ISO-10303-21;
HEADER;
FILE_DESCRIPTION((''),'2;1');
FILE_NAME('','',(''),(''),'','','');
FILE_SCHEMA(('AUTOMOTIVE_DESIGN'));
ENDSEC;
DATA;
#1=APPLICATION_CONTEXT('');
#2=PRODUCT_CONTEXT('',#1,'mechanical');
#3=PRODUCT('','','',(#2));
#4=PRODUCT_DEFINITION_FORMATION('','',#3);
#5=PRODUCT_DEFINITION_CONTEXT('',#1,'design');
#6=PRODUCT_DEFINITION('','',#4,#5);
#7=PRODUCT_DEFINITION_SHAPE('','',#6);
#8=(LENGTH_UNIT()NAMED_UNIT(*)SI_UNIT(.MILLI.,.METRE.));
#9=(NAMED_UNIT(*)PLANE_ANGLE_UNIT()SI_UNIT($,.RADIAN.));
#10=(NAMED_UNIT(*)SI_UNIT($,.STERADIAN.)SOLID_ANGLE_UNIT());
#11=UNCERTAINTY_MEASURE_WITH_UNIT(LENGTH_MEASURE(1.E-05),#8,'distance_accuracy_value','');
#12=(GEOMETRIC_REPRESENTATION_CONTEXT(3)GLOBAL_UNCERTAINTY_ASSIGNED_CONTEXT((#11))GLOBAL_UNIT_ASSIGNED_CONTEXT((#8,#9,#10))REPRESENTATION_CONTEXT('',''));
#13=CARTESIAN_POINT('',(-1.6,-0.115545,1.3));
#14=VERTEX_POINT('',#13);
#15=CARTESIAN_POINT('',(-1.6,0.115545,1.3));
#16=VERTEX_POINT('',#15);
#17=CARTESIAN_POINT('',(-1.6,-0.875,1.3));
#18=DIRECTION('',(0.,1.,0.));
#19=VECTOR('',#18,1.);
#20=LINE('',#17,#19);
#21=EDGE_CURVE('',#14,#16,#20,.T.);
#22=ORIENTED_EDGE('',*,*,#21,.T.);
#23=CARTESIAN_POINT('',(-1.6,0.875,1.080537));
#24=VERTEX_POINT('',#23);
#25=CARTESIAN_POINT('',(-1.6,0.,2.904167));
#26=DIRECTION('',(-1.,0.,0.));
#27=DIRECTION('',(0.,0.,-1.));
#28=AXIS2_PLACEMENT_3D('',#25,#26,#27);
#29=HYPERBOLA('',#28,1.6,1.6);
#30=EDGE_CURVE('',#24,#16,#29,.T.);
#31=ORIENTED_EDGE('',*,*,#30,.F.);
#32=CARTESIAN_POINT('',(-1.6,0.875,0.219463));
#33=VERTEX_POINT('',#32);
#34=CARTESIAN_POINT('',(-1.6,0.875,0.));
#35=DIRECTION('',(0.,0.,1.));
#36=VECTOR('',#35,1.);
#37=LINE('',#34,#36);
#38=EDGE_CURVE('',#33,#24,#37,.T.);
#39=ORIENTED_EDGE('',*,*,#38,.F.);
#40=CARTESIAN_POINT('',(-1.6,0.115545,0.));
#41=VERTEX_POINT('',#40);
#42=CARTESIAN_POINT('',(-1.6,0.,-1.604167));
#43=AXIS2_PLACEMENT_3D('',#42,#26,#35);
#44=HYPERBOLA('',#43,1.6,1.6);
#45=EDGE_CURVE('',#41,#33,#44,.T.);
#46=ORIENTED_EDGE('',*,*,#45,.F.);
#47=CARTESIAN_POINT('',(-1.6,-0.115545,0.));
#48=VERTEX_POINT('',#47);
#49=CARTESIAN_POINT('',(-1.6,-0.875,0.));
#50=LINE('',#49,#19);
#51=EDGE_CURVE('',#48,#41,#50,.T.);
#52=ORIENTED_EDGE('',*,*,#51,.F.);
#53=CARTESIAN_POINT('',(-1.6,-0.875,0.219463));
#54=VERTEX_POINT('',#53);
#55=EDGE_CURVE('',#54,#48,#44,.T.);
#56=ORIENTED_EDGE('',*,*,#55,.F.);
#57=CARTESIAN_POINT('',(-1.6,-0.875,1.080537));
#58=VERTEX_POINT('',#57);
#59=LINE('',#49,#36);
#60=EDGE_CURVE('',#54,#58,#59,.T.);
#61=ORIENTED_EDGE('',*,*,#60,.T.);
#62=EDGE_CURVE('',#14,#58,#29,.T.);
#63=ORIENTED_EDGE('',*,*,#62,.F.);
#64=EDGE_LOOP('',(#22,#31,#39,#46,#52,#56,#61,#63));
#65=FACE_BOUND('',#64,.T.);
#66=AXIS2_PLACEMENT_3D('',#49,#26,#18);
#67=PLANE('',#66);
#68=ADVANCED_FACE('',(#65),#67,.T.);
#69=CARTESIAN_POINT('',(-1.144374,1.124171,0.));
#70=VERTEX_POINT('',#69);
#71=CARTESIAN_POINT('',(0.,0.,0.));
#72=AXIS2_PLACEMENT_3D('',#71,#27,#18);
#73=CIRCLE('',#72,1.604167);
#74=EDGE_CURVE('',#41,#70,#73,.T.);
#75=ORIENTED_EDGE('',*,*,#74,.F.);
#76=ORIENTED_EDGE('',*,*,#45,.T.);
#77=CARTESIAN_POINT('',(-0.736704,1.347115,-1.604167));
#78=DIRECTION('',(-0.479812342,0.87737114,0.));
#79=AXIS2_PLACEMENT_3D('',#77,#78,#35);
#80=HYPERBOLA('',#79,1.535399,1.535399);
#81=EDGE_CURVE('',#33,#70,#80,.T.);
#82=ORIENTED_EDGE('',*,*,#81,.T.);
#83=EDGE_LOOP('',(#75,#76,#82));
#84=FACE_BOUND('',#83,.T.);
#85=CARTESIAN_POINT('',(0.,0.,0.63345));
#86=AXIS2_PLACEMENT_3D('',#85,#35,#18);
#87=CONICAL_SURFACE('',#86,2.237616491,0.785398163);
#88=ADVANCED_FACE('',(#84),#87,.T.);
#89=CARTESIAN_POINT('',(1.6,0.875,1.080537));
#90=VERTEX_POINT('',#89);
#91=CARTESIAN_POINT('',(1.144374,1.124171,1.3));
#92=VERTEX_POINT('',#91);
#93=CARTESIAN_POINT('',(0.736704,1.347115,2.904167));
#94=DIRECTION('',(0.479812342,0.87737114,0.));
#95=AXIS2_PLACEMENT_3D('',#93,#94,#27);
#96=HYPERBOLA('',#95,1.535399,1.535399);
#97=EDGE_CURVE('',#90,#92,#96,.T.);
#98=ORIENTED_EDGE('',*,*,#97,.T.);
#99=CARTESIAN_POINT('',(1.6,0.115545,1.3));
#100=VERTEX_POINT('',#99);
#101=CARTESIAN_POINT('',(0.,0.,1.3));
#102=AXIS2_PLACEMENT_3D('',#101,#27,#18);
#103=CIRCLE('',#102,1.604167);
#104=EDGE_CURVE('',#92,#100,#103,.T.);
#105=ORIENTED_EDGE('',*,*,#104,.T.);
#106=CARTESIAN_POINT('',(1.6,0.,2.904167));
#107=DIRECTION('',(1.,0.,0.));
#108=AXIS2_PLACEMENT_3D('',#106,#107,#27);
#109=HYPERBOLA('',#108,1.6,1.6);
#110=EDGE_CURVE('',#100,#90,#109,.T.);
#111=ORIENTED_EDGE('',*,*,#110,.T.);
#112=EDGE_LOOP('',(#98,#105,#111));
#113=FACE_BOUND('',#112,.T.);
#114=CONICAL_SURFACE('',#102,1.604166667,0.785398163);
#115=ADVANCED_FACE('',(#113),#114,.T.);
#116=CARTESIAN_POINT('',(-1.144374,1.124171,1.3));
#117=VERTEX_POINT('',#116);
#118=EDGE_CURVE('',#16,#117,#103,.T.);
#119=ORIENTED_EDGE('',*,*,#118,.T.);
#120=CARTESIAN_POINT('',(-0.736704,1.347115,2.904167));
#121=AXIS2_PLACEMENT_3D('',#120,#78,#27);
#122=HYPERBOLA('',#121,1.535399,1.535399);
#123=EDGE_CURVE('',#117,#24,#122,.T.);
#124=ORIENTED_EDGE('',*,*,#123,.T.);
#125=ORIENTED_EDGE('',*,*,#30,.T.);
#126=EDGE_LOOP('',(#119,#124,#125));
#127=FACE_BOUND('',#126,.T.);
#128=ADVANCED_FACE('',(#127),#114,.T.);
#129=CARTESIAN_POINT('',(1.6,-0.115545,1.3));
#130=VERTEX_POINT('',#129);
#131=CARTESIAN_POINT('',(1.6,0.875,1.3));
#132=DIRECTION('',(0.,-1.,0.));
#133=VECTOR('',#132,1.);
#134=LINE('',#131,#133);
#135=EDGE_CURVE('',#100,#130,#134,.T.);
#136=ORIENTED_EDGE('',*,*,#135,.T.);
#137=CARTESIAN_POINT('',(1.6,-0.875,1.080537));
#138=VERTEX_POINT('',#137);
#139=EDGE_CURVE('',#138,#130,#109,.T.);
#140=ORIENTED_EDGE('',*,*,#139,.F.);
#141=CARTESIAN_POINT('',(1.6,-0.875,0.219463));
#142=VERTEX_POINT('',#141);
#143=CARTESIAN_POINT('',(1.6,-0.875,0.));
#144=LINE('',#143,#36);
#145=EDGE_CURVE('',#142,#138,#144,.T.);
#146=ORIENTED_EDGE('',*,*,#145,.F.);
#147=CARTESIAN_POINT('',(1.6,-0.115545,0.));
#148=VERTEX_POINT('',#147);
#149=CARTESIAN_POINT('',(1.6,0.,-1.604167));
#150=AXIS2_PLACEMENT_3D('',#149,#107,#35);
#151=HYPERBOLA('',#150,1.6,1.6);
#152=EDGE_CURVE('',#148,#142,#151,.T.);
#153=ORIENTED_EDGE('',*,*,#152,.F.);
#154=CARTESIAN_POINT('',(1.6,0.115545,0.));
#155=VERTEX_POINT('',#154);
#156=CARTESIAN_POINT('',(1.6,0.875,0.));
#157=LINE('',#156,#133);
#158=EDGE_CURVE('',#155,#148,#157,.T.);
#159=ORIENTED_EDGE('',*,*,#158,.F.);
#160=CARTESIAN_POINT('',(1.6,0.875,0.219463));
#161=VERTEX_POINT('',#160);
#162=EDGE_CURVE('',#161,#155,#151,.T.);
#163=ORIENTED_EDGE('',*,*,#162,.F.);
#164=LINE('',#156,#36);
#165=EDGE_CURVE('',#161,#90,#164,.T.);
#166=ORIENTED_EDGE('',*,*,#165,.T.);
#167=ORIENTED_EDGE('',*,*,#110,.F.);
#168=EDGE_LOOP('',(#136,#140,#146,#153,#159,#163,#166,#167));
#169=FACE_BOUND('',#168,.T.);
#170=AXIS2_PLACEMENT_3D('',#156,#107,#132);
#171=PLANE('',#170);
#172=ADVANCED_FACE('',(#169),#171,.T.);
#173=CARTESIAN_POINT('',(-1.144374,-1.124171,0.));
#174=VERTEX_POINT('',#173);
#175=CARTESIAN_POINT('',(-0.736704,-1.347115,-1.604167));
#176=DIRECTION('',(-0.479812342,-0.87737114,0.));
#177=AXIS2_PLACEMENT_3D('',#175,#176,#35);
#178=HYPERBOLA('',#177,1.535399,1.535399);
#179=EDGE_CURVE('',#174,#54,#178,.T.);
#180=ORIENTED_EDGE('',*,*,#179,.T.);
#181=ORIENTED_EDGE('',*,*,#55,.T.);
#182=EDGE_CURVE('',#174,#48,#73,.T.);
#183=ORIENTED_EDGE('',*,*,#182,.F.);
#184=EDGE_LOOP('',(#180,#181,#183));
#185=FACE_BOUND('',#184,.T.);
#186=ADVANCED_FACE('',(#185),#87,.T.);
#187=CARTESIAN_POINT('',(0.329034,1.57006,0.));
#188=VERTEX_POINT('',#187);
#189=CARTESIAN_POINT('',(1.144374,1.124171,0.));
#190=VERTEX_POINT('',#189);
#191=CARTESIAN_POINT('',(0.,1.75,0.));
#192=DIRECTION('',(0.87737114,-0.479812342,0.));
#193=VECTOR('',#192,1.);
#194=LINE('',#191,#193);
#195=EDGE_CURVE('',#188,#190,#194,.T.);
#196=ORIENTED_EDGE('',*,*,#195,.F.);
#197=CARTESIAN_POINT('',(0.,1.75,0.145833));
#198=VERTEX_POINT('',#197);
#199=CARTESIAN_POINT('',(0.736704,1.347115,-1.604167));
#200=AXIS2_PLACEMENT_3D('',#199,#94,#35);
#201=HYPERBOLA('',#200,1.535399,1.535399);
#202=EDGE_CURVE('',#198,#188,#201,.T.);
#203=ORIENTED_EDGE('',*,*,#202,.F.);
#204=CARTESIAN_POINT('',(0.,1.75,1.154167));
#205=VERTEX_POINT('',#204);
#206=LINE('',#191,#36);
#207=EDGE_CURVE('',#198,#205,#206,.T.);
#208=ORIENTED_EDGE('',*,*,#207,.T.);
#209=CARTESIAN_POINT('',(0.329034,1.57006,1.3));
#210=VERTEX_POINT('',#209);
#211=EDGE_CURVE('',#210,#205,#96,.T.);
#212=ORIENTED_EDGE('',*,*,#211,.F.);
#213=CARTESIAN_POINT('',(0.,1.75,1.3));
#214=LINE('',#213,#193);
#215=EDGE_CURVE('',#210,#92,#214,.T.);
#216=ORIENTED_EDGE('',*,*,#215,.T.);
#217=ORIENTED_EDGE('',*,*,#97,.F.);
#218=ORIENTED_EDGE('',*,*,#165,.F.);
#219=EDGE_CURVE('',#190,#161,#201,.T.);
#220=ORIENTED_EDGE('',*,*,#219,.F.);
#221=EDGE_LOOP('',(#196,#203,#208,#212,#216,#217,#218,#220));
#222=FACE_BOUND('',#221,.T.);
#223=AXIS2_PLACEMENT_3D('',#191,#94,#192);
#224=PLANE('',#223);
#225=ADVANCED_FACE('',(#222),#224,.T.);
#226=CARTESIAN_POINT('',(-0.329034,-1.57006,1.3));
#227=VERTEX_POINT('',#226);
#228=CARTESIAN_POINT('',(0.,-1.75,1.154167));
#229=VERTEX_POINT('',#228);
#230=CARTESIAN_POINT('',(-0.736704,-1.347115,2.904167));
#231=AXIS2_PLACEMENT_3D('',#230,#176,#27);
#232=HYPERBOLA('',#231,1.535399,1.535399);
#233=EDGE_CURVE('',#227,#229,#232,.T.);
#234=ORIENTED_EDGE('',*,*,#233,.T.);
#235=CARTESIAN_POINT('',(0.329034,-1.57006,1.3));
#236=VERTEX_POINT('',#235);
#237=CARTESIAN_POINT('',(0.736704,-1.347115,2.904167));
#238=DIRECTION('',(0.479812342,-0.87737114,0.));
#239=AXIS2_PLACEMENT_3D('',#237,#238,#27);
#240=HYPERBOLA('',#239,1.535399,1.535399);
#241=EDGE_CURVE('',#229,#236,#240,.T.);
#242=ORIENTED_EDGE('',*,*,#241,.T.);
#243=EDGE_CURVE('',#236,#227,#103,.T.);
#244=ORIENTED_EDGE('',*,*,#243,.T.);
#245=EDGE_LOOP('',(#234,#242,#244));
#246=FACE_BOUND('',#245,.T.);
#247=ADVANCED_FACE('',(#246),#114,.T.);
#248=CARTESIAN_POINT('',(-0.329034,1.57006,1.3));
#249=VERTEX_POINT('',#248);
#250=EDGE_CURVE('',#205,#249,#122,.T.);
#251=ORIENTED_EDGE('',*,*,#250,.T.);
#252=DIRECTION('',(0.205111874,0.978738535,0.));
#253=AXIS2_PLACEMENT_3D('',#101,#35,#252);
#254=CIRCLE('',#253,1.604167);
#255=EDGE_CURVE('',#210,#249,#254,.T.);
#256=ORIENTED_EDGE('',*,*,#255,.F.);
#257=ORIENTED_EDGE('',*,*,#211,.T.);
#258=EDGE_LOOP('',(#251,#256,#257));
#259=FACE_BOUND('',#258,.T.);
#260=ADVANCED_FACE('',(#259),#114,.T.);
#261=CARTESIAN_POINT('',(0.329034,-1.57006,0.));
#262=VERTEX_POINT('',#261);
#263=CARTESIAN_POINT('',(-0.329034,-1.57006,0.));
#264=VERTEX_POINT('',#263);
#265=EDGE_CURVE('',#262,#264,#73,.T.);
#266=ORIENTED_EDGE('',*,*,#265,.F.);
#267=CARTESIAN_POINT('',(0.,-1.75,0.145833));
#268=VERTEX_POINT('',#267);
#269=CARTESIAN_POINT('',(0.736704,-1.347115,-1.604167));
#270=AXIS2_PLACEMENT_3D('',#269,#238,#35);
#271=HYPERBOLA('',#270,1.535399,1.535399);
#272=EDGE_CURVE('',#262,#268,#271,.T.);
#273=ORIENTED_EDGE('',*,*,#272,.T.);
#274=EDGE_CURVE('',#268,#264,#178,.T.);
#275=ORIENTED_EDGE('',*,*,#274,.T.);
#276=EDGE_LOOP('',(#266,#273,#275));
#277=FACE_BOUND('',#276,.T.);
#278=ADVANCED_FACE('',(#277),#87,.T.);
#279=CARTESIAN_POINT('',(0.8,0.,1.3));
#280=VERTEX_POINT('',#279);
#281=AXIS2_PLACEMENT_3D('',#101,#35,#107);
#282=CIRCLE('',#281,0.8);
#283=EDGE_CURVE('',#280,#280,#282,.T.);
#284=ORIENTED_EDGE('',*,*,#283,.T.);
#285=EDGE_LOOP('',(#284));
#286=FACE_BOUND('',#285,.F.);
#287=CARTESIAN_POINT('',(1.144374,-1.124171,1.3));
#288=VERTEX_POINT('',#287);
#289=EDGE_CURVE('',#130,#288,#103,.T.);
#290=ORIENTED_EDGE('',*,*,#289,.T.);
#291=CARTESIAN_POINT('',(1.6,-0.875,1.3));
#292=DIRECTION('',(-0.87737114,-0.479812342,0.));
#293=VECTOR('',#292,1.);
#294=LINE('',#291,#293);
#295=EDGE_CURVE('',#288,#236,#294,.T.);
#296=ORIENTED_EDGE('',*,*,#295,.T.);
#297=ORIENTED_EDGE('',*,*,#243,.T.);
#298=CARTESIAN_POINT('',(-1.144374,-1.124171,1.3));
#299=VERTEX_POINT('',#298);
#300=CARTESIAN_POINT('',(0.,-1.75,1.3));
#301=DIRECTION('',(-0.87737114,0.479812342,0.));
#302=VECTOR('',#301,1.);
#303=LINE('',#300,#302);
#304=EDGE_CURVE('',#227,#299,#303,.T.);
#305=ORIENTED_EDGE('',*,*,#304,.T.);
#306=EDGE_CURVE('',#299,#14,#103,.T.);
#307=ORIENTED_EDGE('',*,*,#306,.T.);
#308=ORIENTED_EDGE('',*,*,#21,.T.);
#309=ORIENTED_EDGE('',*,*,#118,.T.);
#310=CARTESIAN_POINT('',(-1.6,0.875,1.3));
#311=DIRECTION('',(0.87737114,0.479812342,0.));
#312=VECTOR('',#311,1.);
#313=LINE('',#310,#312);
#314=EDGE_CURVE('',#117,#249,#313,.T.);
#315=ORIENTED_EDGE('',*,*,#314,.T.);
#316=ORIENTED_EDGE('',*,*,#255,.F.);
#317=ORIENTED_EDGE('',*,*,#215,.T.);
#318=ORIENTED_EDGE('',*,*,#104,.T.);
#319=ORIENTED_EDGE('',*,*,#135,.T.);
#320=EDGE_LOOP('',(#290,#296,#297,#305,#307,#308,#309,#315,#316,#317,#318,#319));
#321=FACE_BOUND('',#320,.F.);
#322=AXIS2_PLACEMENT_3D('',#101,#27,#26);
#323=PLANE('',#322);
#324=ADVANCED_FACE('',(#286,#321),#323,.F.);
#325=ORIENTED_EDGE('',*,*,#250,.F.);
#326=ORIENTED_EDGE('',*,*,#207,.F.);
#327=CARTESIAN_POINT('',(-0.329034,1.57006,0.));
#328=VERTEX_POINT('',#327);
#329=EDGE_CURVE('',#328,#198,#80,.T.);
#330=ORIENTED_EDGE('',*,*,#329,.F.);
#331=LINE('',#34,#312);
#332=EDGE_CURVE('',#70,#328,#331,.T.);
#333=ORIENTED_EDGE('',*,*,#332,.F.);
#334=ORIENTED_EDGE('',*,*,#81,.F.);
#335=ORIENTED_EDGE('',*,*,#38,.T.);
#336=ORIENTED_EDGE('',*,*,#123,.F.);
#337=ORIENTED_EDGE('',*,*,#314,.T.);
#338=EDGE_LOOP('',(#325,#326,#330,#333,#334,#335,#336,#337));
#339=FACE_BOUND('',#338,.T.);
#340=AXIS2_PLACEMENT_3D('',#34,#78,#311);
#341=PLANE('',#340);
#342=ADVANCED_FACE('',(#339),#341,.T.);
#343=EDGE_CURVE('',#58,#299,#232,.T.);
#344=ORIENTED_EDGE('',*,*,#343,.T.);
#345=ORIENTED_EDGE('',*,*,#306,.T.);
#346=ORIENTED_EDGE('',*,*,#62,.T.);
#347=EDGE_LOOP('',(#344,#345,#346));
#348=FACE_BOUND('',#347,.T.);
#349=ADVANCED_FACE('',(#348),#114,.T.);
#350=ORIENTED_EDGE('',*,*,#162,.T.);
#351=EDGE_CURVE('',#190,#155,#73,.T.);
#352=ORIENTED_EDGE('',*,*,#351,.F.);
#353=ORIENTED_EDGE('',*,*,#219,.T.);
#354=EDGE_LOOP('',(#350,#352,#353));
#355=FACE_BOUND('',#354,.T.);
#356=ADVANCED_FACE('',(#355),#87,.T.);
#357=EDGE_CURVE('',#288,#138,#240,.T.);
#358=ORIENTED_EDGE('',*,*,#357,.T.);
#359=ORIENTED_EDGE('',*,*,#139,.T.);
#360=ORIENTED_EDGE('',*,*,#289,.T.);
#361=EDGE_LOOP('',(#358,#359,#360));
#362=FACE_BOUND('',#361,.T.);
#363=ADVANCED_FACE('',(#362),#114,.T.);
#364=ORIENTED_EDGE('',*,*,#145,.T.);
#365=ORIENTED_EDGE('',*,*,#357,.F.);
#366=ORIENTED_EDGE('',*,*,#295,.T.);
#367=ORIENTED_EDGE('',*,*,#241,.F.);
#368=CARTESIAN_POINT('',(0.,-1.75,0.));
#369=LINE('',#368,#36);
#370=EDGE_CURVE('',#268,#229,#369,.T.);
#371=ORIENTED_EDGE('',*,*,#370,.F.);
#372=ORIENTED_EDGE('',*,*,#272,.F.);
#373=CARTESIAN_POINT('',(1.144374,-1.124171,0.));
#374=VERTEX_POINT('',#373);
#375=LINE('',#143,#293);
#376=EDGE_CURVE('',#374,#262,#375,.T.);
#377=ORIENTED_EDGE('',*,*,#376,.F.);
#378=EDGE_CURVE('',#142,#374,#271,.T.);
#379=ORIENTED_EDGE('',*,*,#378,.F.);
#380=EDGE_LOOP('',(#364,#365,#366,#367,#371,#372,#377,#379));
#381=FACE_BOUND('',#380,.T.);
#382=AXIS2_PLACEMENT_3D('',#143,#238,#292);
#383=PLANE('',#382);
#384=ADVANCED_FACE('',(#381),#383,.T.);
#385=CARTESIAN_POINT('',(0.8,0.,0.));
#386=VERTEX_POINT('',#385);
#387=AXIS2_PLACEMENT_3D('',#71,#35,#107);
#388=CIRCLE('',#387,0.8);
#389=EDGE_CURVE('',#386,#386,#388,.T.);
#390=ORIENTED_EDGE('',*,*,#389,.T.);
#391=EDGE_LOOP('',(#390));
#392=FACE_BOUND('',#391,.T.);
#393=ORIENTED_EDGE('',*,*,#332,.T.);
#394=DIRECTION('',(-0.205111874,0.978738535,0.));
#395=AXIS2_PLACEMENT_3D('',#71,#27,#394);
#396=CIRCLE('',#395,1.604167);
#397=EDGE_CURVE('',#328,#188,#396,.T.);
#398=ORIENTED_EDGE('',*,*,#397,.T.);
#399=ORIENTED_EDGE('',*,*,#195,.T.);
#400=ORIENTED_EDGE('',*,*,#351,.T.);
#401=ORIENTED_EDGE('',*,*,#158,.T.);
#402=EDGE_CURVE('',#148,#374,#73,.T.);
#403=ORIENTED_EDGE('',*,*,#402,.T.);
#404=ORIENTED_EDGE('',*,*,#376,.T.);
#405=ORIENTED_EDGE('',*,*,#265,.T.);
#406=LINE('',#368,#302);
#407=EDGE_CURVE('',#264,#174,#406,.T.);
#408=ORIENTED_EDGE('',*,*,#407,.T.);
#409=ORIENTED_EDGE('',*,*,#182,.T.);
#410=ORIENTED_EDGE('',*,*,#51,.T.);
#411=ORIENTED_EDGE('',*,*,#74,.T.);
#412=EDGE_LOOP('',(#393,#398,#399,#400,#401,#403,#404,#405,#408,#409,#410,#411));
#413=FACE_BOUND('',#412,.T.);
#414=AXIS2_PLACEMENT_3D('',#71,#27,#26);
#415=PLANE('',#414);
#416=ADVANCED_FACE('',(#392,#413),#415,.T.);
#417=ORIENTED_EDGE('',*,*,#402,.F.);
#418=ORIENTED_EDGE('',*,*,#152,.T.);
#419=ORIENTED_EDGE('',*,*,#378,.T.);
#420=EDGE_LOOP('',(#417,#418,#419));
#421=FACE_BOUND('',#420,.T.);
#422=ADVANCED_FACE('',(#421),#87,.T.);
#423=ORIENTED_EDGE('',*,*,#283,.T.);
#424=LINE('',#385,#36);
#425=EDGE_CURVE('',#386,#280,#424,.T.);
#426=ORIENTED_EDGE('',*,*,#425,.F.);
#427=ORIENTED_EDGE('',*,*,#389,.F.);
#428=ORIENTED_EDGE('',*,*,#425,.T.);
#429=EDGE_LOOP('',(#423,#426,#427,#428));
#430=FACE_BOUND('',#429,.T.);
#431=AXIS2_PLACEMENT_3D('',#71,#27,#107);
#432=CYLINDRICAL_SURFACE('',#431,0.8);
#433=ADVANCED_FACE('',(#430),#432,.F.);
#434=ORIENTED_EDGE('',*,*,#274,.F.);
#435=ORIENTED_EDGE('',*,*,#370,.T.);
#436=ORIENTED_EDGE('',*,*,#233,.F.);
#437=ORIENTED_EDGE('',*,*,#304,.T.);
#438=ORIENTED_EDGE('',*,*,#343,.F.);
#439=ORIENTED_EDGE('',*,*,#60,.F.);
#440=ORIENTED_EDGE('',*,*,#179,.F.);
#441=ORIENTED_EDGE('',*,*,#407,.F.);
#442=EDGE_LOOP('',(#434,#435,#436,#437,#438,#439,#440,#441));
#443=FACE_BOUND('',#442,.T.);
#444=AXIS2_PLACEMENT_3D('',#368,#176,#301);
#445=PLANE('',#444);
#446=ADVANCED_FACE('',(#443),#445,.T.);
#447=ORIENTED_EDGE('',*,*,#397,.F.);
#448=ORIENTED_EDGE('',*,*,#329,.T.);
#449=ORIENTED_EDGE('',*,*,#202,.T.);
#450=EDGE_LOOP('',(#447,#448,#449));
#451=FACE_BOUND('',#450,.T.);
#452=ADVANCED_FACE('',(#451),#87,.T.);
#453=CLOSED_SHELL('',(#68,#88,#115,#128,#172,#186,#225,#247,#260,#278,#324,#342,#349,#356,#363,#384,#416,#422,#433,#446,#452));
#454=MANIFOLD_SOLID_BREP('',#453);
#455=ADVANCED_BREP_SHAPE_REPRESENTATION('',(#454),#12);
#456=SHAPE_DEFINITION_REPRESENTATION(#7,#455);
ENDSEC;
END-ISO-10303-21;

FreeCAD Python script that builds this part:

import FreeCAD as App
import Part
import Sketcher
from FreeCAD import Vector
Q = App.Units.Quantity


def add_polygon(sketch, points):
    """Adds a closed chain of lines whose ends are joined by coincident constraints."""
    first, n = sketch.GeometryCount, len(points)
    for a, b in zip(points, points[1:] + points[:1]):
        sketch.addGeometry(Part.LineSegment(App.Vector(*a, 0), App.Vector(*b, 0)), False)
    for i in range(n):
        sketch.addConstraint(Sketcher.Constraint("Coincident", first + i, 2, first + (i + 1) % n, 1))

doc = App.newDocument("Part")
body = doc.addObject("PartDesign::Body", "Body")

sketch1 = doc.addObject("Sketcher::SketchObject", "Sketch")
body.addObject(sketch1)
sketch1.AttachmentSupport = (doc.XY_Plane, [""])
sketch1.MapMode = "FlatFace"
add_polygon(sketch1, [(-1.6, 0.9), (-1.6, -0.9), (0, -1.8), (1.6, -0.9), (1.6, 0.9), (0, 1.8)])
sketch1.addGeometry(Part.Circle(Vector(0, 0, 0), Vector(0, 0, 1), 0.8), False)
sketch1.addConstraint(Sketcher.Constraint("Vertical", 0))
sketch1.addConstraint(Sketcher.Constraint("Vertical", 3))
sketch1.addConstraint(Sketcher.Constraint("Coincident", 6, 3, -1, 1))
sketch1.addConstraint(Sketcher.Constraint("Symmetric", 0, 2, 3, 2, -1, 1))
sketch1.addConstraint(Sketcher.Constraint("Symmetric", 1, 2, 4, 2, -1, 1))
sketch1.addConstraint(Sketcher.Constraint("PointOnObject", 1, 2, -2))
sketch1.addConstraint(Sketcher.Constraint("Parallel", 2, 5))
sketch1.addConstraint(Sketcher.Constraint("Horizontal", 0, 2, 2, 2))
sketch1.addConstraint(Sketcher.Constraint("Diameter", 6, Q("1.6 mm")))
sketch1.addConstraint(Sketcher.Constraint("DistanceY", 0, 2, 0, 1, Q("1.75 mm")))
sketch1.addConstraint(Sketcher.Constraint("DistanceX", 0, 2, -1, 1, Q("1.6 mm")))
sketch1.addConstraint(Sketcher.Constraint("DistanceY", 1, 2, 4, 2, Q("3.5 mm")))
pad1 = doc.addObject("PartDesign::Pad", "Pad")
body.addObject(pad1)
pad1.Profile = sketch1
pad1.Length = 1.3

sketch2 = doc.addObject("Sketcher::SketchObject", "Sketch001")
body.addObject(sketch2)
sketch2.AttachmentSupport = (doc.YZ_Plane, [""])
sketch2.MapMode = "FlatFace"
add_polygon(sketch2, [(1.6, 1.3), (2.2, 0.7), (2.2, 1.3)])
add_polygon(sketch2, [(2.2, 0), (2.2, 0.6), (1.6, 0)])
sketch2.addConstraint(Sketcher.Constraint("Vertical", 1))
sketch2.addConstraint(Sketcher.Constraint("Horizontal", 2))
sketch2.addConstraint(Sketcher.Constraint("Vertical", 3))
sketch2.addConstraint(Sketcher.Constraint("Horizontal", 5))
sketch2.addConstraint(Sketcher.Constraint("PointOnObject", 4, 2, -1))
sketch2.addConstraint(Sketcher.Constraint("Perpendicular", 0, 4))
sketch2.addConstraint(Sketcher.Constraint("Vertical", 1, 2, 3, 2))
sketch2.addConstraint(Sketcher.Constraint("Vertical", 2, 2, 4, 2))
sketch2.addConstraint(Sketcher.Constraint("Equal", 5, 1))
sketch2.addConstraint(Sketcher.Constraint("DistanceY", -1, 1, 1, 2, Q("1.3 mm")))
sketch2.addConstraint(Sketcher.Constraint("DistanceX", 2, 2, 2, 1, Q("0.63345 mm")))
sketch2.addConstraint(Sketcher.Constraint("DistanceX", -1, 1, 0, 2, Q("2.237616 mm")))
groove = doc.addObject("PartDesign::Groove", "Groove")
body.addObject(groove)
groove.Profile = sketch2
groove.ReferenceAxis = (sketch2, ["V_Axis"])
groove.Angle = 360

doc.recompute()
